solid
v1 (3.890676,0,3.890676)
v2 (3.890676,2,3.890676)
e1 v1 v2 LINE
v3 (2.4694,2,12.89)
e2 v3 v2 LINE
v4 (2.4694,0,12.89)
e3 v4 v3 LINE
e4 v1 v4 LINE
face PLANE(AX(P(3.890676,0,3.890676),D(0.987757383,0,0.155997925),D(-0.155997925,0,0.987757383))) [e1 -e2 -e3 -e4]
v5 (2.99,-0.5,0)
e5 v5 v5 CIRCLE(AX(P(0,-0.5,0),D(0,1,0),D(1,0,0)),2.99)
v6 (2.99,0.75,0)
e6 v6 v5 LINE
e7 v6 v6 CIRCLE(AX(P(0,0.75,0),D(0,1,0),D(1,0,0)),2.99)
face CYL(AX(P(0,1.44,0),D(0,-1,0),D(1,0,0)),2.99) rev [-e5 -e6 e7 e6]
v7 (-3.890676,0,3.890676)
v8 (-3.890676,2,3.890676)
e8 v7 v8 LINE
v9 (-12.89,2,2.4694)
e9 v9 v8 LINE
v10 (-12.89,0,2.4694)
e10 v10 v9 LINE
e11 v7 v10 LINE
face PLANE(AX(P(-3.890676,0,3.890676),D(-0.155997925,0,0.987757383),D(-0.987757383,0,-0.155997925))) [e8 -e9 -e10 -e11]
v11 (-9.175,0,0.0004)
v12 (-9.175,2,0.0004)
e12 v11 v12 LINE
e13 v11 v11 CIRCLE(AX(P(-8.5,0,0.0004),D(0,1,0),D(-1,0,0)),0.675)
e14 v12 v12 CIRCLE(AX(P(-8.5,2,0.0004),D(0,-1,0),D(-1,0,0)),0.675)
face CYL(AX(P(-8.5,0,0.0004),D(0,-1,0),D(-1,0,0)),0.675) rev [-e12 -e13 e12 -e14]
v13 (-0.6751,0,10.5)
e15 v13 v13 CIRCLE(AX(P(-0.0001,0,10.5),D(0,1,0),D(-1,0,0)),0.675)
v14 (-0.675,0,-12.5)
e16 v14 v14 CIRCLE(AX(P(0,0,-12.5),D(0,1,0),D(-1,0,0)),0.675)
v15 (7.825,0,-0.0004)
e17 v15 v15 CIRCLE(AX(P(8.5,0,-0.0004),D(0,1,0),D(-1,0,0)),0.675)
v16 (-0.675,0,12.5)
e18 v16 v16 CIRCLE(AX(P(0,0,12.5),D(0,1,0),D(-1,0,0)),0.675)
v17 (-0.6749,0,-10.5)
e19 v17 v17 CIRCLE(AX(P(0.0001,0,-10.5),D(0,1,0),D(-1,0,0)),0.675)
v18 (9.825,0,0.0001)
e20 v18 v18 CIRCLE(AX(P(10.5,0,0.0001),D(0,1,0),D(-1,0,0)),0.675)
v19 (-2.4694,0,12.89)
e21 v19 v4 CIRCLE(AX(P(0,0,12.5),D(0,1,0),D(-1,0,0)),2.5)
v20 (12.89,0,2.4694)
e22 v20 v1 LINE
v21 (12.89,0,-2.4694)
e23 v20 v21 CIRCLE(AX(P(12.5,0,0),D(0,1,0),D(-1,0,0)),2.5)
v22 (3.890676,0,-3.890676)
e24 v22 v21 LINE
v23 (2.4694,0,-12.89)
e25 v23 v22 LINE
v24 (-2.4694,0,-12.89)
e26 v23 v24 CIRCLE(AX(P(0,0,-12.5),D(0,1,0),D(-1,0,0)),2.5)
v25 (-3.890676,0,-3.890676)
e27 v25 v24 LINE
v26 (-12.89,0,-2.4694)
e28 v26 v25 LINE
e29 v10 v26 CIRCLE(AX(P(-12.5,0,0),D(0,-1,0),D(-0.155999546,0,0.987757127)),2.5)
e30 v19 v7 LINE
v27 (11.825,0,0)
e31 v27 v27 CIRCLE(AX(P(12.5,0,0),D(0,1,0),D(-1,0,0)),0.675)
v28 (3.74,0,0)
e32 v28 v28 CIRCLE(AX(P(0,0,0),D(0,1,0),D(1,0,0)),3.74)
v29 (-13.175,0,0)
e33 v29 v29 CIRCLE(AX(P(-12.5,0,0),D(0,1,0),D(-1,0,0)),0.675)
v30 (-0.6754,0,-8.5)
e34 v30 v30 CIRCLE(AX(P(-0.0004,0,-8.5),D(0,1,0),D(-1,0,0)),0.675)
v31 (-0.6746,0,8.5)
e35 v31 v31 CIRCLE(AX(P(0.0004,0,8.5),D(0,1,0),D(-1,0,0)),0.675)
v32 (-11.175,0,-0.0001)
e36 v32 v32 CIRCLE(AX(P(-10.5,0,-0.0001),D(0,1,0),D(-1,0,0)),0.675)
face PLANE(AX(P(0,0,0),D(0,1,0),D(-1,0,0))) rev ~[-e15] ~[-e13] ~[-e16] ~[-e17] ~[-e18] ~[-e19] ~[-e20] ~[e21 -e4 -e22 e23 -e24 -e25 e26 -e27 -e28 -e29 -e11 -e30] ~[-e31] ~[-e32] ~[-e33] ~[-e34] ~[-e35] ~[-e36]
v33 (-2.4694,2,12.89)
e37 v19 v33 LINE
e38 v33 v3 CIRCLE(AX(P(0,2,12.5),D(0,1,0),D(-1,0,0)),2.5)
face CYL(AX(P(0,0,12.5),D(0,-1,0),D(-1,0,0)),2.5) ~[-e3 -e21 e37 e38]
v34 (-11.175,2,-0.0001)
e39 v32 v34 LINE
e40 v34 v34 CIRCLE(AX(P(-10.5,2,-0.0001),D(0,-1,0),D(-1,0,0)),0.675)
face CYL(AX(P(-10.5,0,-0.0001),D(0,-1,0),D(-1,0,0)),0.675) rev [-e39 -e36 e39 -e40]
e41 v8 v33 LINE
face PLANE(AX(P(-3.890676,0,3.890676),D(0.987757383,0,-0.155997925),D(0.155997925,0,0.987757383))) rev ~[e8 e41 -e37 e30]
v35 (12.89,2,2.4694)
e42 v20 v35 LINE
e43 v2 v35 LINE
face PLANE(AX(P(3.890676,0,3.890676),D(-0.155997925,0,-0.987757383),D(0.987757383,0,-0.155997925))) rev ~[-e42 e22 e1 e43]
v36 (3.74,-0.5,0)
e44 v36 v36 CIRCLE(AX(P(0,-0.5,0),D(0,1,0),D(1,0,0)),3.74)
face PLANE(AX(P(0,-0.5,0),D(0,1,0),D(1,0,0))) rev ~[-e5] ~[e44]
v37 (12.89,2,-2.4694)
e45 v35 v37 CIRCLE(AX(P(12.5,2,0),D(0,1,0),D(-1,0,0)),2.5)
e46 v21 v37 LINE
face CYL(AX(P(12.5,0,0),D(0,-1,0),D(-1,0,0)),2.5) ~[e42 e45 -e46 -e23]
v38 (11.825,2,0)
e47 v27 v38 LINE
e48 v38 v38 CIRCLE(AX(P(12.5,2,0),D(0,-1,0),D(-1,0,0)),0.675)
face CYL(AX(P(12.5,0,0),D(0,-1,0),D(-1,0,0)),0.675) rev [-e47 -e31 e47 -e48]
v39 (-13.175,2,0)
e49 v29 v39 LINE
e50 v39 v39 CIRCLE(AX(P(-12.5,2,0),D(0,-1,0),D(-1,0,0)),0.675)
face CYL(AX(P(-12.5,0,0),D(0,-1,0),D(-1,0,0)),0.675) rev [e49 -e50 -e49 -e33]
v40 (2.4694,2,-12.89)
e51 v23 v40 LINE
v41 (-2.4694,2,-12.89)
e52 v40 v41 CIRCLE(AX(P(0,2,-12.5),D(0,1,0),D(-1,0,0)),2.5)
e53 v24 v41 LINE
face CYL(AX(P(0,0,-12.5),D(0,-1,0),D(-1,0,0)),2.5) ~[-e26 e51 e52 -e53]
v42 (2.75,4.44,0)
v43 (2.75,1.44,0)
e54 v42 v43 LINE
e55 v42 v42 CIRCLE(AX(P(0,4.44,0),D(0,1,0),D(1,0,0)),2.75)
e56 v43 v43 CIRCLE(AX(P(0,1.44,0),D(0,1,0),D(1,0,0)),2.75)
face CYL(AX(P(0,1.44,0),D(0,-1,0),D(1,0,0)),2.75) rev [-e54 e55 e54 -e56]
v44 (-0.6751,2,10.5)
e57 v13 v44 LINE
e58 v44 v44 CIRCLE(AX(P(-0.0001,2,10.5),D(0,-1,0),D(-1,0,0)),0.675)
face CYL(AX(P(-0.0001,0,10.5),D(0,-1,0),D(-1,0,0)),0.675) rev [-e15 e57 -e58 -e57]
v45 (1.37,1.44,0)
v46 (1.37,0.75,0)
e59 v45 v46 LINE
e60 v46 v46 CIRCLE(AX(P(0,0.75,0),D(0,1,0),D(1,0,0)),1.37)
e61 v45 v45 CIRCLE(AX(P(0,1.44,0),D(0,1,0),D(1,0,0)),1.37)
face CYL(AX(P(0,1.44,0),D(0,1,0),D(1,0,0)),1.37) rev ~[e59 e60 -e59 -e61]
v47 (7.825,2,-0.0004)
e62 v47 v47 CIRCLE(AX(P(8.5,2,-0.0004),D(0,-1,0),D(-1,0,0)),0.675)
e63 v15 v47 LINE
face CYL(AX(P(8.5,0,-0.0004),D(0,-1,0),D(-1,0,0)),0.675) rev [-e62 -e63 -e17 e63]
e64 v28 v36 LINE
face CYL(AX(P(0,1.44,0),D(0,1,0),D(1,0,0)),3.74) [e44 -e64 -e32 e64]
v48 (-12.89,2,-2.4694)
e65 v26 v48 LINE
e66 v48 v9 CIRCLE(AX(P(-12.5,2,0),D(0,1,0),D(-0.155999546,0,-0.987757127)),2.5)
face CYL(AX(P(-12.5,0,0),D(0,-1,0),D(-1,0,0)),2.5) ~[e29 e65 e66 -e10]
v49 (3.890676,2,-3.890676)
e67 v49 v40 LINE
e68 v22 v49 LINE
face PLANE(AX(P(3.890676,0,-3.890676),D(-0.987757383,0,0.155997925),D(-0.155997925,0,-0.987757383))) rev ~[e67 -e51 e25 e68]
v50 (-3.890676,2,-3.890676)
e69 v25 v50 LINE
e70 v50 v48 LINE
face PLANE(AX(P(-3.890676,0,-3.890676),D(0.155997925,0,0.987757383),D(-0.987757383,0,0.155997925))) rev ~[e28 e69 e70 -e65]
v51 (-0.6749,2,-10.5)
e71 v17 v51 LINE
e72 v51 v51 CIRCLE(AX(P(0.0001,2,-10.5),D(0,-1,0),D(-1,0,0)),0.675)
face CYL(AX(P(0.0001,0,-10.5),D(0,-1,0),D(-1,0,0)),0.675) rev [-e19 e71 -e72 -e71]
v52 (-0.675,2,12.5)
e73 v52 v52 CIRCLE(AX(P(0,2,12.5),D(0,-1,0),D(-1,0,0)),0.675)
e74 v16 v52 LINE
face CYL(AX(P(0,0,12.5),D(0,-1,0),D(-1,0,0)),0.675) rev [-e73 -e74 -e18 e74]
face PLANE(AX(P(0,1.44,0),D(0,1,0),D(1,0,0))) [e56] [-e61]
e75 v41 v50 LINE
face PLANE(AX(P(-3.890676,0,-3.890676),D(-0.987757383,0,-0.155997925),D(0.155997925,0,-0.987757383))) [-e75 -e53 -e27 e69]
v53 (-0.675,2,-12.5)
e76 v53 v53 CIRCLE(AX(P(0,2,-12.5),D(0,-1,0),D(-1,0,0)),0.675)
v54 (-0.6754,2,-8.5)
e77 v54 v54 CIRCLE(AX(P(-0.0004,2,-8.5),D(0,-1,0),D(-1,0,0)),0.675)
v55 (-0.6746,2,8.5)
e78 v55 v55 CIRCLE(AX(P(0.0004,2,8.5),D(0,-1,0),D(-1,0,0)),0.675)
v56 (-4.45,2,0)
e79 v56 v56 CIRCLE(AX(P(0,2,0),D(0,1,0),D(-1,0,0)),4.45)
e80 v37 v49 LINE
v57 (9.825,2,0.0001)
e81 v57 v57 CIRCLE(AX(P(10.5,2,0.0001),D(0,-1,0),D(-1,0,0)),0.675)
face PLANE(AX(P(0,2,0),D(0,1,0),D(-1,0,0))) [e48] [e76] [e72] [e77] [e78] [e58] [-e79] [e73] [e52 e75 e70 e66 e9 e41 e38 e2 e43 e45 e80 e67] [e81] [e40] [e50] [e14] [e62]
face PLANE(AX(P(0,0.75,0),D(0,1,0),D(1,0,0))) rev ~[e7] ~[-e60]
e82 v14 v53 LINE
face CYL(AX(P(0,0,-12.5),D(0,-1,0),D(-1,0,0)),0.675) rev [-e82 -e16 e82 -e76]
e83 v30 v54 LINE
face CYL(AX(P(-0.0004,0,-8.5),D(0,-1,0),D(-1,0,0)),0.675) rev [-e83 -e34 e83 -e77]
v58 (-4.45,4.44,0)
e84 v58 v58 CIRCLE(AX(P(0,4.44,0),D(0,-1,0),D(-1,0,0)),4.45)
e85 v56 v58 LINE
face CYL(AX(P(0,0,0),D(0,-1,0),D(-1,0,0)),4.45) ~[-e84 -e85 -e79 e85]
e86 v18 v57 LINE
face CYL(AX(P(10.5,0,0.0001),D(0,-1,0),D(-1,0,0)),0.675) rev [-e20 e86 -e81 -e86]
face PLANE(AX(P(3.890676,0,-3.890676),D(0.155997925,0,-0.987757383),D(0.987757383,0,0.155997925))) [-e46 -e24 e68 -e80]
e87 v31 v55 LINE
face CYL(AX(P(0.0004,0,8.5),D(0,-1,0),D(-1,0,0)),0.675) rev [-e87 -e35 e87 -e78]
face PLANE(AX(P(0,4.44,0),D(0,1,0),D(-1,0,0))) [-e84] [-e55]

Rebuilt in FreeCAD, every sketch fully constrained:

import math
import FreeCAD as App
import Part
import Sketcher

V = App.Vector
Q = App.Units.Quantity

doc = App.newDocument("Part")
body = doc.addObject("PartDesign::Body", "Body")

# Sketch on XZ plane
sketch1 = doc.addObject("Sketcher::SketchObject", "Sketch")
body.addObject(sketch1)
sketch1.AttachmentSupport = (doc.XZ_Plane, [""])
sketch1.MapMode = "FlatFace"
sketch1.addGeometry([
    Part.LineSegment(V(-3.9, 3.9, 0), V(-2.5, 12.9, 0)),  # 0
    Part.ArcOfCircle(Part.Circle(V(0, 12.5, 0), V(0, 0, 1), 2.5), math.radians(9), math.radians(171)),  # 1
    Part.LineSegment(V(2.5, 12.9, 0), V(3.9, 3.9, 0)),  # 2
    Part.LineSegment(V(3.9, 3.9, 0), V(12.9, 2.5, 0)),  # 3
    Part.ArcOfCircle(Part.Circle(V(12.5, 0, 0), V(0, 0, 1), 2.5), math.radians(-81), math.radians(81)),  # 4
    Part.LineSegment(V(12.9, -2.5, 0), V(3.9, -3.9, 0)),  # 5
    Part.LineSegment(V(3.9, -3.9, 0), V(2.5, -12.9, 0)),  # 6
    Part.ArcOfCircle(Part.Circle(V(0, -12.5, 0), V(0, 0, 1), 2.5), math.radians(-171), math.radians(-9)),  # 7
    Part.LineSegment(V(-2.5, -12.9, 0), V(-3.9, -3.9, 0)),  # 8
    Part.LineSegment(V(-3.9, -3.9, 0), V(-12.9, -2.5, 0)),  # 9
    Part.ArcOfCircle(Part.Circle(V(-12.5, 0, 0), V(0, 0, 1), 2.5), math.radians(99), math.radians(261)),  # 10
    Part.LineSegment(V(-12.9, 2.5, 0), V(-3.9, 3.9, 0)),  # 11
    Part.Circle(V(0, 0, 0), V(0, 0, 1), 4.5),  # 12
    Part.Circle(V(-8.5, 0, 0), V(0, 0, 1), 0.7),  # 13
    Part.Circle(V(-10.5, 0, 0), V(0, 0, 1), 0.7),  # 14
    Part.Circle(V(0, 8.5, 0), V(0, 0, 1), 0.7),  # 15
    Part.Circle(V(0, -8.5, 0), V(0, 0, 1), 0.7),  # 16
    Part.Circle(V(0, 10.5, 0), V(0, 0, 1), 0.7),  # 17
    Part.Circle(V(-12.5, 0, 0), V(0, 0, 1), 0.7),  # 18
    Part.Circle(V(0, -10.5, 0), V(0, 0, 1), 0.7),  # 19
    Part.Circle(V(8.5, 0, 0), V(0, 0, 1), 0.7),  # 20
    Part.Circle(V(10.5, 0, 0), V(0, 0, 1), 0.7),  # 21
    Part.Circle(V(0, 12.5, 0), V(0, 0, 1), 0.7),  # 22
    Part.Circle(V(0, -12.5, 0), V(0, 0, 1), 0.7),  # 23
    Part.Circle(V(12.5, 0, 0), V(0, 0, 1), 0.7),  # 24
], False)
sketch1.addConstraint([
    Sketcher.Constraint("Tangent", 0, 2, 1, 2),
    Sketcher.Constraint("Tangent", 1, 1, 2, 1),
    Sketcher.Constraint("Coincident", 2, 2, 3, 1),
    Sketcher.Constraint("Tangent", 3, 2, 4, 2),
    Sketcher.Constraint("Tangent", 4, 1, 5, 1),
    Sketcher.Constraint("Coincident", 5, 2, 6, 1),
    Sketcher.Constraint("Tangent", 6, 2, 7, 2),
    Sketcher.Constraint("Tangent", 7, 1, 8, 1),
    Sketcher.Constraint("Coincident", 8, 2, 9, 1),
    Sketcher.Constraint("Tangent", 9, 2, 10, 2),
    Sketcher.Constraint("Tangent", 10, 1, 11, 1),
    Sketcher.Constraint("Coincident", 11, 2, 0, 1),
    Sketcher.Constraint("Coincident", 12, 3, -1, 1),
    Sketcher.Constraint("Coincident", 18, 3, 10, 3),
    Sketcher.Constraint("Coincident", 22, 3, 1, 3),
    Sketcher.Constraint("Coincident", 23, 3, 7, 3),
    Sketcher.Constraint("Coincident", 24, 3, 4, 3),
    Sketcher.Constraint("Equal", 1, 4),
    Sketcher.Constraint("Equal", 4, 7),
    Sketcher.Constraint("Equal", 7, 10),
    Sketcher.Constraint("Equal", 13, 14),
    Sketcher.Constraint("Equal", 14, 15),
    Sketcher.Constraint("Equal", 15, 16),
    Sketcher.Constraint("Equal", 16, 17),
    Sketcher.Constraint("Equal", 17, 18),
    Sketcher.Constraint("Equal", 18, 19),
    Sketcher.Constraint("Equal", 19, 20),
    Sketcher.Constraint("Equal", 20, 21),
    Sketcher.Constraint("Equal", 21, 22),
    Sketcher.Constraint("Equal", 22, 23),
    Sketcher.Constraint("Equal", 23, 24),
    Sketcher.Constraint("Symmetric", 1, 3, 7, 3, -1, 1),
    Sketcher.Constraint("Symmetric", 4, 3, 10, 3, -1, 1),
    Sketcher.Constraint("Symmetric", 15, 3, 16, 3, -1, 1),
    Sketcher.Constraint("Symmetric", 17, 3, 19, 3, -1, 1),
    Sketcher.Constraint("Symmetric", 13, 3, 20, 3, -1, 1),
    Sketcher.Constraint("Symmetric", 14, 3, 21, 3, -1, 1),
    Sketcher.Constraint("Symmetric", 2, 2, 8, 2, -1, 1),
    Sketcher.Constraint("Symmetric", 5, 2, 11, 2, -1, 1),
    Sketcher.Constraint("Symmetric", 0, 2, 1, 1, -2),
    Sketcher.Constraint("Symmetric", 4, 1, 9, 2, -2),
    Sketcher.Constraint("PointOnObject", 14, 3, -1),
    Sketcher.Constraint("PointOnObject", 17, 3, -2),
    Sketcher.Constraint("Perpendicular", 0, 3),
    Sketcher.Constraint("Equal", 2, 3),
    Sketcher.Constraint("Diameter", 12, Q("8.9 mm")),
    Sketcher.Constraint("Radius", 1, Q("2.5 mm")),
    Sketcher.Constraint("Diameter", 13, Q("1.35 mm")),
    Sketcher.Constraint("DistanceY", 7, 3, 1, 3, Q("25 mm")),
    Sketcher.Constraint("DistanceX", 13, 3, 4, 3, Q("21 mm")),
    Sketcher.Constraint("DistanceX", 10, 3, 14, 3, Q("2 mm")),
    Sketcher.Constraint("DistanceY", 15, 3, 1, 3, Q("4 mm")),
    Sketcher.Constraint("DistanceY", 17, 3, 1, 3, Q("2 mm")),
    Sketcher.Constraint("DistanceY", -1, 1, 0, 2, Q("12.89 mm")),
    Sketcher.Constraint("DistanceX", 15, 3, 1, 1, Q("2.469 mm")),
    Sketcher.Constraint("DistanceY", 20, 3, 2, 2, Q("3.891 mm")),
])
pad1 = doc.addObject("PartDesign::Pad", "Pad")
body.addObject(pad1)
pad1.Profile = sketch1
pad1.Length = 2
pad1.Reversed = True

# Sketch on XZ plane
sketch2 = doc.addObject("Sketcher::SketchObject", "Sketch001")
body.addObject(sketch2)
sketch2.AttachmentSupport = (doc.XZ_Plane, [""])
sketch2.MapMode = "FlatFace"
sketch2.addGeometry([
    Part.Circle(V(0, 0, 0), V(0, 0, 1), 4.5),
    Part.Circle(V(0, 0, 0), V(0, 0, 1), 3.7),
], False)
sketch2.addConstraint([
    Sketcher.Constraint("Coincident", 0, 3, -1, 1),
    Sketcher.Constraint("Coincident", 1, 3, -1, 1),
    Sketcher.Constraint("Diameter", 0, Q("8.9 mm")),
    Sketcher.Constraint("Diameter", 1, Q("7.48 mm")),
])
pad2 = doc.addObject("PartDesign::Pad", "Pad001")
body.addObject(pad2)
pad2.Profile = sketch2
pad2.Length = 4.44
pad2.Reversed = True

# Sketch on XZ plane
sketch3 = doc.addObject("Sketcher::SketchObject", "Sketch002")
body.addObject(sketch3)
sketch3.AttachmentSupport = (doc.XZ_Plane, [""])
sketch3.MapMode = "FlatFace"
sketch3.AttachmentOffset = App.Placement(V(0, 0, -1.44), App.Rotation())
sketch3.addGeometry([
    Part.Circle(V(0, 0, 0), V(0, 0, 1), 3.7),
    Part.Circle(V(0, 0, 0), V(0, 0, 1), 3),
], False)
sketch3.addConstraint([
    Sketcher.Constraint("Coincident", 0, 3, -1, 1),
    Sketcher.Constraint("Coincident", 1, 3, -1, 1),
    Sketcher.Constraint("Diameter", 0, Q("7.48 mm")),
    Sketcher.Constraint("Diameter", 1, Q("5.98 mm")),
])
pad3 = doc.addObject("PartDesign::Pad", "Pad002")
body.addObject(pad3)
pad3.Profile = sketch3
pad3.Type = "TwoLengths"
pad3.Length = 3
pad3.Length2 = 1.94
pad3.Reversed = True

# Sketch on XZ plane
sketch4 = doc.addObject("Sketcher::SketchObject", "Sketch003")
body.addObject(sketch4)
sketch4.AttachmentSupport = (doc.XZ_Plane, [""])
sketch4.MapMode = "FlatFace"
sketch4.AttachmentOffset = App.Placement(V(0, 0, -1.44), App.Rotation())
sketch4.addGeometry([
    Part.Circle(V(0, 0, 0), V(0, 0, 1), 3),
    Part.Circle(V(0, 0, 0), V(0, 0, 1), 2.8),
], False)
sketch4.addConstraint([
    Sketcher.Constraint("Coincident", 0, 3, -1, 1),
    Sketcher.Constraint("Coincident", 1, 3, -1, 1),
    Sketcher.Constraint("Diameter", 1, Q("5.5 mm")),
    Sketcher.Constraint("Diameter", 0, Q("5.98 mm")),
])
pad4 = doc.addObject("PartDesign::Pad", "Pad003")
body.addObject(pad4)
pad4.Profile = sketch4
pad4.Type = "TwoLengths"
pad4.Length = 3
pad4.Length2 = 0.69
pad4.Reversed = True

# Sketch on XZ plane
sketch5 = doc.addObject("Sketcher::SketchObject", "Sketch004")
body.addObject(sketch5)
sketch5.AttachmentSupport = (doc.XZ_Plane, [""])
sketch5.MapMode = "FlatFace"
sketch5.AttachmentOffset = App.Placement(V(0, 0, -1.44), App.Rotation())
sketch5.addGeometry([
    Part.Circle(V(0, 0, 0), V(0, 0, 1), 2.8),
    Part.Circle(V(0, 0, 0), V(0, 0, 1), 1.4),
], False)
sketch5.addConstraint([
    Sketcher.Constraint("Coincident", 0, 3, -1, 1),
    Sketcher.Constraint("Coincident", 1, 3, -1, 1),
    Sketcher.Constraint("Diameter", 0, Q("5.5 mm")),
    Sketcher.Constraint("Diameter", 1, Q("2.74 mm")),
])
pad5 = doc.addObject("PartDesign::Pad", "Pad004")
body.addObject(pad5)
pad5.Profile = sketch5
pad5.Length = 0.69

doc.recompute()
